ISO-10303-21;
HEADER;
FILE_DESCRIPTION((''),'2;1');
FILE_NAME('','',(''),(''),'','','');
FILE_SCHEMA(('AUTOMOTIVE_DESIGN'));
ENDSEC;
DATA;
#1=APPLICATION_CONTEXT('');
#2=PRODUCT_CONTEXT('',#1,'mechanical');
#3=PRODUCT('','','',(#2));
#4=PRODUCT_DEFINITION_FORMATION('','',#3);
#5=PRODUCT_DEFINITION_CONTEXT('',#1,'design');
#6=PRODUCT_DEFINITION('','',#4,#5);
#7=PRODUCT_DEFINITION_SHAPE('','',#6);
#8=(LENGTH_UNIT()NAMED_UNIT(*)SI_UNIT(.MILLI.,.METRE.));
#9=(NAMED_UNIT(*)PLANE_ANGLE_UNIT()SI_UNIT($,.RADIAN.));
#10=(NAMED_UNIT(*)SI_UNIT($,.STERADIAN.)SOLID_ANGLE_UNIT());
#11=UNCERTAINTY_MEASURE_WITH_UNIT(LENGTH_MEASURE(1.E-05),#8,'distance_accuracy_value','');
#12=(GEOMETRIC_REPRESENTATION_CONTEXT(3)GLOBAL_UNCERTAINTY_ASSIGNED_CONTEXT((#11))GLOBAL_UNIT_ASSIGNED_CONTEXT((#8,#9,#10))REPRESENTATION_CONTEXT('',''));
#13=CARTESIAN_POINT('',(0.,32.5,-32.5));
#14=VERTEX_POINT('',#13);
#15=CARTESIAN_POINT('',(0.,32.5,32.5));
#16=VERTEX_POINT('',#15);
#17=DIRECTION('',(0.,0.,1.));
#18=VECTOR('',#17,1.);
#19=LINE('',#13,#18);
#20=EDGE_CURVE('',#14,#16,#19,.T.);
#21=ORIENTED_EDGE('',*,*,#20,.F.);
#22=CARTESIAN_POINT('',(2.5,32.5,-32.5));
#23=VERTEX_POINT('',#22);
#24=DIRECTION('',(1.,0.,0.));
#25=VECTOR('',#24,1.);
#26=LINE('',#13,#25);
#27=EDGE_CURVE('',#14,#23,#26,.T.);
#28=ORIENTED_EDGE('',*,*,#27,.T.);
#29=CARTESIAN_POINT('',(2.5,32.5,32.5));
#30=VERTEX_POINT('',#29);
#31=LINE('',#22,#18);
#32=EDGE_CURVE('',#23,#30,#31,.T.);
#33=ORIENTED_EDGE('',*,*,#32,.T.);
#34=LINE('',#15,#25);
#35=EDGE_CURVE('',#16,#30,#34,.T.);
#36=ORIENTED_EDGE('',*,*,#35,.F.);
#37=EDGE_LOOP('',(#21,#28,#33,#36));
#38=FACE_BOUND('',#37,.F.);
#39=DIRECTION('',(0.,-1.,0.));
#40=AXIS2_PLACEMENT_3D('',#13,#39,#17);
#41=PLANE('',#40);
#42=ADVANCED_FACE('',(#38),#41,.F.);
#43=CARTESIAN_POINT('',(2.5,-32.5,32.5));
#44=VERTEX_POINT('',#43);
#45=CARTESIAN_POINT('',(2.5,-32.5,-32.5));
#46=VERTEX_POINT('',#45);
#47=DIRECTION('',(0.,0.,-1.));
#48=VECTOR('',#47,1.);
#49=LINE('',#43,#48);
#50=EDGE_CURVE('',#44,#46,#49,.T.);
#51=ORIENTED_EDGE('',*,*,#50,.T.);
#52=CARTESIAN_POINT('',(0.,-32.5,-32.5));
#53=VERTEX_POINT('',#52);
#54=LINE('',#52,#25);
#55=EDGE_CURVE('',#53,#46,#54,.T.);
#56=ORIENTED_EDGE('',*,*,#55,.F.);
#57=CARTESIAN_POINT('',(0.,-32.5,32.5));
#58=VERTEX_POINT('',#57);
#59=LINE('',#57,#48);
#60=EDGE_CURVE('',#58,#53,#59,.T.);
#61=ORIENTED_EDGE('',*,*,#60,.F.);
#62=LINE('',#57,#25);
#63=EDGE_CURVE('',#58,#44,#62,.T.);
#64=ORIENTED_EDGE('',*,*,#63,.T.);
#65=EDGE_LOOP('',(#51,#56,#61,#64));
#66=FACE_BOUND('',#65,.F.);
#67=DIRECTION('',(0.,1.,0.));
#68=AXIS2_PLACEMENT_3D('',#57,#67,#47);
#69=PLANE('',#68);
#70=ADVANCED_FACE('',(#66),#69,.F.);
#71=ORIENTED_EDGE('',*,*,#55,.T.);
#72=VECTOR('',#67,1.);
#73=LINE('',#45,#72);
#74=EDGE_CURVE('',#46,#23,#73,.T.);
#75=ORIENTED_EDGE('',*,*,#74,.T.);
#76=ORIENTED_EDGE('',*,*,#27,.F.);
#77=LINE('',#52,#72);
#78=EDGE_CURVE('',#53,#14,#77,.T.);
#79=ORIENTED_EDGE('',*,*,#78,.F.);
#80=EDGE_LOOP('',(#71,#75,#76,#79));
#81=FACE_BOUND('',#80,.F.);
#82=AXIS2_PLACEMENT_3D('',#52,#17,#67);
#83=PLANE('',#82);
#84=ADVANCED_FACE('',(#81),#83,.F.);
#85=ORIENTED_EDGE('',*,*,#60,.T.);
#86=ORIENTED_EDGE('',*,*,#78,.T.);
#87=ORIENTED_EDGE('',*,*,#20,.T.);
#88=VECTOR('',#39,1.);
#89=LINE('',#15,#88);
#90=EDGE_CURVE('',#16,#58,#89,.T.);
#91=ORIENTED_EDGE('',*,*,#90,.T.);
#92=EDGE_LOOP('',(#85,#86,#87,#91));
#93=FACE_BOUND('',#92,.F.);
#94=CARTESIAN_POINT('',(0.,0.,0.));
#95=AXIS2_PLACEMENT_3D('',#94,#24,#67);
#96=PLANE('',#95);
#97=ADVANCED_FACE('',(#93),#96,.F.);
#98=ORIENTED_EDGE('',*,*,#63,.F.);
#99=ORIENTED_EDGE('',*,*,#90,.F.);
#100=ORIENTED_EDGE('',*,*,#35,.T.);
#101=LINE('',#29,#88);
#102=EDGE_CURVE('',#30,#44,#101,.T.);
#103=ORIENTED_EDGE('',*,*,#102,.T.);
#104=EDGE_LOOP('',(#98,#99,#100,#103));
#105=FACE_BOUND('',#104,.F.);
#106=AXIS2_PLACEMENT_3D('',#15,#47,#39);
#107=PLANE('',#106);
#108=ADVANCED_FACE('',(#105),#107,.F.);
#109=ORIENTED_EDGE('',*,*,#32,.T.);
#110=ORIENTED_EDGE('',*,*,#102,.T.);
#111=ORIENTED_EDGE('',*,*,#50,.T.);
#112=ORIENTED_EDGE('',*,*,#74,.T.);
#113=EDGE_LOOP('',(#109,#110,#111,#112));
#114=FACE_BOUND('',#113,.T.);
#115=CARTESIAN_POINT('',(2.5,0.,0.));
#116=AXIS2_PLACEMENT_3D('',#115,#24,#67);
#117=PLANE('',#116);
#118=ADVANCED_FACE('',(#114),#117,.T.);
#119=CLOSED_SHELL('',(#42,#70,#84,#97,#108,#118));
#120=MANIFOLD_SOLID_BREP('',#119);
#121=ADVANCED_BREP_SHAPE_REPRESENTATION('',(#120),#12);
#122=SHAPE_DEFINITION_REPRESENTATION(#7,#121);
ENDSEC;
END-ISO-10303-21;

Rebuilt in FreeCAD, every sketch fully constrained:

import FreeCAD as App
import Part
import Sketcher
from FreeCAD import Vector
Q = App.Units.Quantity

doc = App.newDocument("Part")
body = doc.addObject("PartDesign::Body", "Body")

# Sketch on YZ plane
sketch1 = body.newObject("Sketcher::SketchObject", "Sketch")
sketch1.AttachmentSupport = (doc.getObject("YZ_Plane"), [""])
sketch1.MapMode = "FlatFace"
sketch1.addGeometry([
    Part.LineSegment(Vector(32.5, -32.5, 0), Vector(32.5, 32.5, 0)),
    Part.LineSegment(Vector(32.5, 32.5, 0), Vector(-32.5, 32.5, 0)),
    Part.LineSegment(Vector(-32.5, 32.5, 0), Vector(-32.5, -32.5, 0)),
    Part.LineSegment(Vector(-32.5, -32.5, 0), Vector(32.5, -32.5, 0)),
], False)
sketch1.addConstraint([
    Sketcher.Constraint("Coincident", 0, 2, 1, 1),
    Sketcher.Constraint("Coincident", 1, 2, 2, 1),
    Sketcher.Constraint("Coincident", 2, 2, 3, 1),
    Sketcher.Constraint("Coincident", 3, 2, 0, 1),
    Sketcher.Constraint("Vertical", 0),
    Sketcher.Constraint("Horizontal", 1),
    Sketcher.Constraint("Vertical", 2),
    Sketcher.Constraint("Horizontal", 3),
    Sketcher.Constraint("Symmetric", 0, 2, 2, 2, -1, 1),
    Sketcher.Constraint("Equal", 3, 0),
    Sketcher.Constraint("DistanceX", 1, 2, 1, 1, Q("65 mm")),
])
pad1 = body.newObject("PartDesign::Pad", "Pad")
pad1.Profile = sketch1
pad1.Length = 2.5

doc.recompute()
